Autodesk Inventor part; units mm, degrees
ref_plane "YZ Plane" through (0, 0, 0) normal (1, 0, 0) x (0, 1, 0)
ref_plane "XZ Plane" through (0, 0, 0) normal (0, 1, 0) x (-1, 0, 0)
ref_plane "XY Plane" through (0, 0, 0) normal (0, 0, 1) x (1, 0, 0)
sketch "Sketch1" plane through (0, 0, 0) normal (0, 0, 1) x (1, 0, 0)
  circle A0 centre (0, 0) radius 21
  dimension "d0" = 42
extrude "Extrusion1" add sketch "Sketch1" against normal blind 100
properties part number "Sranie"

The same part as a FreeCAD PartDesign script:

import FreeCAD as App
import Part
import Sketcher

V = App.Vector

doc = App.newDocument("Part")
body = doc.addObject("PartDesign::Body", "Body")

sketch1 = doc.addObject("Sketcher::SketchObject", "Sketch")
body.addObject(sketch1)
sketch1.AttachmentSupport = (doc.XY_Plane, [""])
sketch1.MapMode = "FlatFace"
sketch1.addGeometry(Part.Circle(V(0, 0, 0), V(0, 0, 1), 21), False)
sketch1.addConstraint(Sketcher.Constraint("Coincident", 0, 3, -1, 1))
sketch1.addConstraint(Sketcher.Constraint("Diameter", 0, 42.0))
pad1 = doc.addObject("PartDesign::Pad", "Pad")
body.addObject(pad1)
pad1.Profile = sketch1
pad1.Length = 100
pad1.Reversed = True

doc.recompute()
